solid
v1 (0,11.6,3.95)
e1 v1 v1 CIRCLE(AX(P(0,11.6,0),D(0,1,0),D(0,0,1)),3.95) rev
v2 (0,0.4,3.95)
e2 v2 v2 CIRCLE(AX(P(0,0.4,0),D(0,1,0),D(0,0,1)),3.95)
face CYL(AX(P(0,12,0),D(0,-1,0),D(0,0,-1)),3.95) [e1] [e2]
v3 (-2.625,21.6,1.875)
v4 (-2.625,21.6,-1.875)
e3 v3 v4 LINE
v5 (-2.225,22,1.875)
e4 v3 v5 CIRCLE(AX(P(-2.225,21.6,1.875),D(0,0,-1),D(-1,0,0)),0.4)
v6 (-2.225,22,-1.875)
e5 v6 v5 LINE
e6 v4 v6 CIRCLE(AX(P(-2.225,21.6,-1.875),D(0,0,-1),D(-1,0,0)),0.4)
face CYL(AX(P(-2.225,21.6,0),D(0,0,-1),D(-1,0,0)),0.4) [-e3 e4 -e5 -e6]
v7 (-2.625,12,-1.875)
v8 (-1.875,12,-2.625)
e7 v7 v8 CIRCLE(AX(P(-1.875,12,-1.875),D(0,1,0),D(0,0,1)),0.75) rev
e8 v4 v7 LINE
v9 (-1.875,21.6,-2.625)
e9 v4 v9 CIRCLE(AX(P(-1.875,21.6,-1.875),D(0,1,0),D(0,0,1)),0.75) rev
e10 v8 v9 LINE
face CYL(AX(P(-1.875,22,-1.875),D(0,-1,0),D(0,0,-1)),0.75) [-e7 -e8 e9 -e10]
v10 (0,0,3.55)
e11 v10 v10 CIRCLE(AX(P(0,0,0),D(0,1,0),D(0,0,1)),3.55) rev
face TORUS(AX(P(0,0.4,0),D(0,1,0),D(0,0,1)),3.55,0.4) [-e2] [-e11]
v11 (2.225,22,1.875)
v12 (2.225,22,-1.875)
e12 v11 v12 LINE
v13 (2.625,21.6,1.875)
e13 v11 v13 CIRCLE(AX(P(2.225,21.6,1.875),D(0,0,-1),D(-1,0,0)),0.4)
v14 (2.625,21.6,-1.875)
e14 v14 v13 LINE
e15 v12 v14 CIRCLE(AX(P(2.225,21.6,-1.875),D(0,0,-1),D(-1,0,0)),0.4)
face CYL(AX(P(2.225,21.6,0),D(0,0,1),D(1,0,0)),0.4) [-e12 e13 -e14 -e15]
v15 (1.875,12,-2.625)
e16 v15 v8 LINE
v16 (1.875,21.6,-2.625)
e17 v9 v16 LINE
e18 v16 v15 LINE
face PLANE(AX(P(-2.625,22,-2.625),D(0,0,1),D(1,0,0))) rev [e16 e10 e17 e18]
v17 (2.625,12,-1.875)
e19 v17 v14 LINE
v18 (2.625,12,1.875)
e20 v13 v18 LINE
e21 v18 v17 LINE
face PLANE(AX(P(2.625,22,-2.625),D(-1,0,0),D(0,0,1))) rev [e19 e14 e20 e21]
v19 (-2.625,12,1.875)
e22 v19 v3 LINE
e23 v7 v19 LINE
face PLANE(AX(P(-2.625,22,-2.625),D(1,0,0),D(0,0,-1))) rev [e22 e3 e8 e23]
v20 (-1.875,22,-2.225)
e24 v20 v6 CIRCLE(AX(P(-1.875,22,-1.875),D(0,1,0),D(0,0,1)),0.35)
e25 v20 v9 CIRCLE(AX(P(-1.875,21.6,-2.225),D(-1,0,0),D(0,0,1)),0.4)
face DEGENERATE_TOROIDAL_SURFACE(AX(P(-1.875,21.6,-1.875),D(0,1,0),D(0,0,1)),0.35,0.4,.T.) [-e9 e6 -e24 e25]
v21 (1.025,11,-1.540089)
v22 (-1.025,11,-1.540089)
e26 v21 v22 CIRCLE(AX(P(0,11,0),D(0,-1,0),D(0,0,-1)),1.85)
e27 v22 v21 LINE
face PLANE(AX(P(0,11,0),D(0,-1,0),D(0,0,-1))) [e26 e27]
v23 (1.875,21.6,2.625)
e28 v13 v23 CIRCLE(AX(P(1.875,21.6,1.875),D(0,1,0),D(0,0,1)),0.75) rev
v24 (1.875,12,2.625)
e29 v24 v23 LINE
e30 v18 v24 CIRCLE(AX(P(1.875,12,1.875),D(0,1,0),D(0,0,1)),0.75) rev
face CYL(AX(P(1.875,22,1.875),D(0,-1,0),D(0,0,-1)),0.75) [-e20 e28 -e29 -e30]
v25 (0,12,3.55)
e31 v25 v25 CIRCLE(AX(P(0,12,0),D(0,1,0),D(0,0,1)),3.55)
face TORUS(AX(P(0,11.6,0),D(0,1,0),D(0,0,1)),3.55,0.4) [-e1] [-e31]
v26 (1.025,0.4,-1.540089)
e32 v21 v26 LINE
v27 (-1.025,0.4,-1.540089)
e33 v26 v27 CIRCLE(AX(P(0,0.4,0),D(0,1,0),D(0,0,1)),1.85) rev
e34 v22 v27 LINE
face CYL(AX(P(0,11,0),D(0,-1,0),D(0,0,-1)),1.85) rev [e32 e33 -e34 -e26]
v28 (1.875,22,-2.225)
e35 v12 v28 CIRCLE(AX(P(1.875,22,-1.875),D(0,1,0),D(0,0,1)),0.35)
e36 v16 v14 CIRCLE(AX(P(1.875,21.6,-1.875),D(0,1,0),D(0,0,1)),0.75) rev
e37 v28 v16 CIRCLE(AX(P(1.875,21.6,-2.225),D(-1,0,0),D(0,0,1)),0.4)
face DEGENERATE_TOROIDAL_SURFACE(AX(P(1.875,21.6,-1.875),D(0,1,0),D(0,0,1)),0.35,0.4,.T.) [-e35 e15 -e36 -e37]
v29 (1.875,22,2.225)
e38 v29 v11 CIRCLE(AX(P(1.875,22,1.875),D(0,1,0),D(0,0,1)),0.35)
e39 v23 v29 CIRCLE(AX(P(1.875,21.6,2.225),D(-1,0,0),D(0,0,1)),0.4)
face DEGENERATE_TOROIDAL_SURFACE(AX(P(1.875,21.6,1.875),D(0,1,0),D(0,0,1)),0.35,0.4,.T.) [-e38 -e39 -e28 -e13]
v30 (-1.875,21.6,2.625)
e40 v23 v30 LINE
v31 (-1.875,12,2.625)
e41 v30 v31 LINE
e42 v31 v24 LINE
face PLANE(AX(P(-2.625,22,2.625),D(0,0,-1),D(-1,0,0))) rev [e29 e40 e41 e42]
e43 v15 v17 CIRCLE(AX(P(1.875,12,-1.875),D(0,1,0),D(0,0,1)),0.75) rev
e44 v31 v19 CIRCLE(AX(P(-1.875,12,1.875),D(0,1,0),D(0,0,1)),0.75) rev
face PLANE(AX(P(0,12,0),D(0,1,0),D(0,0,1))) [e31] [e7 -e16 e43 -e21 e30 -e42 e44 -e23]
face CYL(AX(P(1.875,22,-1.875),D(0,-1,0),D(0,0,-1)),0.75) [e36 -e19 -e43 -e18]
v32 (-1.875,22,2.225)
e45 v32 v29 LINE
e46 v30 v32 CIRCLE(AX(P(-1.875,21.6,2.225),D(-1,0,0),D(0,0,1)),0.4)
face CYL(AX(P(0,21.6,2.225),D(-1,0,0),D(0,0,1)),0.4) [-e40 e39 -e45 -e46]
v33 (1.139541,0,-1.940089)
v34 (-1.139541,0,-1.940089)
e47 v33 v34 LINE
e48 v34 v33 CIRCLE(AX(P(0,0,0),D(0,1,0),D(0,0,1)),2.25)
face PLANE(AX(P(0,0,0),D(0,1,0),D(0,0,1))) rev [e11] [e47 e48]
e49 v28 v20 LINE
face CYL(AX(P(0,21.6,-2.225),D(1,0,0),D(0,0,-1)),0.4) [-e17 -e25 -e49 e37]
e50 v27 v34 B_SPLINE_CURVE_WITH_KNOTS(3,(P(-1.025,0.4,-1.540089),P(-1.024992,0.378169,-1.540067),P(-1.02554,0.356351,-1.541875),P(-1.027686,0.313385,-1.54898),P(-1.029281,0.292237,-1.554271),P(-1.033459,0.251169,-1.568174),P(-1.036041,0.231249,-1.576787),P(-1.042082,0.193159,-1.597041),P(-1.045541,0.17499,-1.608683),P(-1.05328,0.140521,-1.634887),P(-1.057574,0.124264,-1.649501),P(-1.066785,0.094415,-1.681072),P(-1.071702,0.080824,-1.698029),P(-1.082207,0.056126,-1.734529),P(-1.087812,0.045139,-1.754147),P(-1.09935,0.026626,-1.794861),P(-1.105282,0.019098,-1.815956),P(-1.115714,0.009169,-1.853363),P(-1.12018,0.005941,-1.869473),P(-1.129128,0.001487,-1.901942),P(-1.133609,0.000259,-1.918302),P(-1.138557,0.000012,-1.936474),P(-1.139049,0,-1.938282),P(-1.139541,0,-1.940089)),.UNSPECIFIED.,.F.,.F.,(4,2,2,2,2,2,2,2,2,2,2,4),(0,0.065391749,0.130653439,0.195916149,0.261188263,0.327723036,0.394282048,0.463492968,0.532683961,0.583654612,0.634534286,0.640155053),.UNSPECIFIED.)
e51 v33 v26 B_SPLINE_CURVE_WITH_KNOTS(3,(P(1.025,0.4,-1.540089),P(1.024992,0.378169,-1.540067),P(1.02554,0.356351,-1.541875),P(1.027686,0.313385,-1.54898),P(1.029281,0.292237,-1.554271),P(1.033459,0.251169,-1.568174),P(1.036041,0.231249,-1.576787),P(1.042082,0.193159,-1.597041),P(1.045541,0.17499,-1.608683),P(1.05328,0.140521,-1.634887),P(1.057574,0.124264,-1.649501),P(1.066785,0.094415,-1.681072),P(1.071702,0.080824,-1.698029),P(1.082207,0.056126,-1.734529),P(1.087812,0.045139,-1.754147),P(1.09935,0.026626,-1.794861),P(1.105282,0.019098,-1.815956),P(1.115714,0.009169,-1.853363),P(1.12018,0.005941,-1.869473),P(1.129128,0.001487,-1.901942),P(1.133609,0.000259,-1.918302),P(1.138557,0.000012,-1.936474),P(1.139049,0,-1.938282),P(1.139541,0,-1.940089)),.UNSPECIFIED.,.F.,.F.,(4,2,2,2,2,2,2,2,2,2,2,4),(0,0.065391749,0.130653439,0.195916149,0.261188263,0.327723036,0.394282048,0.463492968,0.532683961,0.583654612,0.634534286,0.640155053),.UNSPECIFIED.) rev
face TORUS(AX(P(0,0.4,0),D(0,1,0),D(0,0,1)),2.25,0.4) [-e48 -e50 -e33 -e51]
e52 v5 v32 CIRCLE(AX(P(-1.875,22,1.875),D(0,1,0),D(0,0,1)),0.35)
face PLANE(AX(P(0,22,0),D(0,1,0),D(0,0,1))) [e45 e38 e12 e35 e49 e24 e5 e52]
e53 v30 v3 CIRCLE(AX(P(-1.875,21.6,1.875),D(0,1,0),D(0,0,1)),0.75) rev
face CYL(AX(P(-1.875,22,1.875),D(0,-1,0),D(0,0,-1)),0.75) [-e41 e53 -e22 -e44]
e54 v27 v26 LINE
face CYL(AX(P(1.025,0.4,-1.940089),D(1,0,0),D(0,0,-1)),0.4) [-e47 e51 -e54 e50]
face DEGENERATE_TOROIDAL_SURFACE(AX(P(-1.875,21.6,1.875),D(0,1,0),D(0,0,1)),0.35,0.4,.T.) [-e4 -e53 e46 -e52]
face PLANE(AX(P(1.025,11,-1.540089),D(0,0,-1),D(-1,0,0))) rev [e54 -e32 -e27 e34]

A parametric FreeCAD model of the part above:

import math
import FreeCAD as App
import Part
import Sketcher
from FreeCAD import Vector
Q = App.Units.Quantity


def edges_at(feature, points):
    """Names of the edges that pass closest to the given points."""
    edges = feature.Shape.Edges
    near = lambda p: min(range(len(edges)), key=lambda i: edges[i].distToShape(Part.Vertex(*p))[0])
    return sorted({f"Edge{near(p) + 1}" for p in points})

doc = App.newDocument("Part")
body = doc.addObject("PartDesign::Body", "Body")

sketch1 = body.newObject("Sketcher::SketchObject", "Sketch")
sketch1.AttachmentSupport = (doc.getObject("XZ_Plane"), [""])
sketch1.MapMode = "FlatFace"
sketch1.addGeometry(Part.Circle(Vector(0, 0, 0), Vector(0, 0, 1), 4), False)
sketch1.addConstraint(Sketcher.Constraint("Coincident", 0, 3, -1, 1))
sketch1.addConstraint(Sketcher.Constraint("Diameter", 0, Q("7.9 mm")))
pad1 = body.newObject("PartDesign::Pad", "Pad")
pad1.Profile = sketch1
pad1.Length = 12
pad1.Reversed = True

sketch2 = body.newObject("Sketcher::SketchObject", "Sketch001")
sketch2.AttachmentSupport = (doc.getObject("XZ_Plane"), [""])
sketch2.MapMode = "FlatFace"
sketch2.AttachmentOffset = App.Placement(Vector(0, 0, -12), App.Rotation())
sketch2.addGeometry(Part.LineSegment(Vector(-3, -3, 0), Vector(-3, 3, 0)), False)
sketch2.addGeometry(Part.LineSegment(Vector(-3, 3, 0), Vector(3, 3, 0)), False)
sketch2.addGeometry(Part.LineSegment(Vector(3, 3, 0), Vector(3, -3, 0)), False)
sketch2.addGeometry(Part.LineSegment(Vector(3, -3, 0), Vector(-3, -3, 0)), False)
sketch2.addConstraint(Sketcher.Constraint("Coincident", 0, 2, 1, 1))
sketch2.addConstraint(Sketcher.Constraint("Coincident", 1, 2, 2, 1))
sketch2.addConstraint(Sketcher.Constraint("Coincident", 2, 2, 3, 1))
sketch2.addConstraint(Sketcher.Constraint("Coincident", 3, 2, 0, 1))
sketch2.addConstraint(Sketcher.Constraint("Vertical", 0))
sketch2.addConstraint(Sketcher.Constraint("Horizontal", 1))
sketch2.addConstraint(Sketcher.Constraint("Vertical", 2))
sketch2.addConstraint(Sketcher.Constraint("Horizontal", 3))
sketch2.addConstraint(Sketcher.Constraint("Symmetric", 0, 2, 2, 2, -1, 1))
sketch2.addConstraint(Sketcher.Constraint("Equal", 3, 0))
sketch2.addConstraint(Sketcher.Constraint("DistanceX", 1, 1, 1, 2, Q("5.25 mm")))
pad2 = body.newObject("PartDesign::Pad", "Pad001")
pad2.Profile = sketch2
pad2.Length = 10
pad2.Reversed = True

sketch3 = body.newObject("Sketcher::SketchObject", "Sketch002")
sketch3.AttachmentSupport = (doc.getObject("XZ_Plane"), [""])
sketch3.MapMode = "FlatFace"
sketch3.addGeometry(Part.LineSegment(Vector(-1, -1.5, 0), Vector(1, -1.5, 0)), False)
sketch3.addGeometry(Part.ArcOfCircle(Part.Circle(Vector(0, 0, 0), Vector(0, 0, 1), 1.9), math.radians(-56), math.radians(236)), False)
sketch3.addConstraint(Sketcher.Constraint("Coincident", 0, 1, 1, 2))
sketch3.addConstraint(Sketcher.Constraint("Coincident", 1, 1, 0, 2))
sketch3.addConstraint(Sketcher.Constraint("Horizontal", 0))
sketch3.addConstraint(Sketcher.Constraint("Coincident", 1, 3, -1, 1))
sketch3.addConstraint(Sketcher.Constraint("Radius", 1, Q("1.85 mm")))
sketch3.addConstraint(Sketcher.Constraint("DistanceX", 0, 1, 0, 2, Q("2.05 mm")))
pocket1 = body.newObject("PartDesign::Pocket", "Pocket")
pocket1.Profile = sketch3
pocket1.Length = 11
doc.recompute()

fillet = body.newObject("PartDesign::Fillet", "Fillet")
fillet.Base = (pocket1, edges_at(pocket1, [
    (-2.625, 17, -2.625),
    (-2.625, 17, 2.625),
    (2.625, 17, 2.625),
    (2.625, 17, -2.625),
]))
fillet.Radius = 0.75
doc.recompute()

fillet2 = body.newObject("PartDesign::Fillet", "Fillet001")
fillet2.Base = (fillet, edges_at(fillet, [
    (0, 0, 1.85),
    (0, 0, -1.54),
    (0, 0, -3.95),
    (2.625, 22, 0),
    (0, 22, 2.625),
    (-2.625, 22, 0),
    (0, 22, -2.625),
    (-2.405, 22, 2.405),
    (-2.405, 22, -2.405),
    (2.405, 22, -2.405),
    (2.405, 22, 2.405),
    (0, 12, -3.95),
]))
fillet2.Radius = 0.4

doc.recompute()
